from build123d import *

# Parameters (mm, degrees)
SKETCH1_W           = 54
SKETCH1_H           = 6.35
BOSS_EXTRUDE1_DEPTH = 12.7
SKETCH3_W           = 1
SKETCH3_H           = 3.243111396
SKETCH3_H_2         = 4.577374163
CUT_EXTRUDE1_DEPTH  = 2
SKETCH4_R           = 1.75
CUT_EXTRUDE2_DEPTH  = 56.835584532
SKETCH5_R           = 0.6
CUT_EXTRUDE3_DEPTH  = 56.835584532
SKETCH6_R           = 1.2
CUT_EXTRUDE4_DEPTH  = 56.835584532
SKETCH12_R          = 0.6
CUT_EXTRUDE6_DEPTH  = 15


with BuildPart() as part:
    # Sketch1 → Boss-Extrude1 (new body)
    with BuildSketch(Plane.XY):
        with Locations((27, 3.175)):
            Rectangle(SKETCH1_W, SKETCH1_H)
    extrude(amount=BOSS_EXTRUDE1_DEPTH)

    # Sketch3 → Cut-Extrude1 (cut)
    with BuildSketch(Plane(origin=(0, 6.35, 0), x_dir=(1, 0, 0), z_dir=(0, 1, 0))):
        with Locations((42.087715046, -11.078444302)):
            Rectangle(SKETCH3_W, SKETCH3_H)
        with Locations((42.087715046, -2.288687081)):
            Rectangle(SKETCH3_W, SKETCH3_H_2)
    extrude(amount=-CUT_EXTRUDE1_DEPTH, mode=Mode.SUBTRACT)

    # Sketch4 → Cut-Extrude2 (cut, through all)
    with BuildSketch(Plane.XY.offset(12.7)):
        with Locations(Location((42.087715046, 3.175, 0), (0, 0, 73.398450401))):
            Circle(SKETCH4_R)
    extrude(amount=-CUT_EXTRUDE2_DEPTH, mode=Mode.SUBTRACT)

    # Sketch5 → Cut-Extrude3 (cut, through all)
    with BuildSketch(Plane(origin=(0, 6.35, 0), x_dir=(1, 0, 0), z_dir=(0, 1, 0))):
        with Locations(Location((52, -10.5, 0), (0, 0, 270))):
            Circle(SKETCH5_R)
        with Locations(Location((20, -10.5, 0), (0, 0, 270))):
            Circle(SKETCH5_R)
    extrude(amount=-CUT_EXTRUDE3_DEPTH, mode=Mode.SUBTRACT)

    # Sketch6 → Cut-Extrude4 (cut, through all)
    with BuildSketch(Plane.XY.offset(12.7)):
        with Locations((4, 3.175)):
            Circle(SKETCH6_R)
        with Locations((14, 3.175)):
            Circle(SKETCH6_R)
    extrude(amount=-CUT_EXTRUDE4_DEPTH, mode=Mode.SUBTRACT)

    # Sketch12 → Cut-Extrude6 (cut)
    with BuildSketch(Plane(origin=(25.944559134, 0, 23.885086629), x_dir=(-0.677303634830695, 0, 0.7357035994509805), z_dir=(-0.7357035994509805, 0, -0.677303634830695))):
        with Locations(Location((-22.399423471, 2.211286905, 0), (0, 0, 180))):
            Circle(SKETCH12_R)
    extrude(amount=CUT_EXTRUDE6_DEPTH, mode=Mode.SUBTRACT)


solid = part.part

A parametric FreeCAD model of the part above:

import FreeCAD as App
import Part
import Sketcher
from FreeCAD import Vector
Q = App.Units.Quantity


def add_polygon(sketch, points):
    """Adds a closed chain of lines whose ends are joined by coincident constraints."""
    first, n = sketch.GeometryCount, len(points)
    for a, b in zip(points, points[1:] + points[:1]):
        sketch.addGeometry(Part.LineSegment(App.Vector(*a, 0), App.Vector(*b, 0)), False)
    for i in range(n):
        sketch.addConstraint(Sketcher.Constraint("Coincident", first + i, 2, first + (i + 1) % n, 1))

doc = App.newDocument("Part")
body = doc.addObject("PartDesign::Body", "Body")

sketch1 = body.newObject("Sketcher::SketchObject", "Sketch")
sketch1.AttachmentSupport = (doc.getObject("XY_Plane"), [""])
sketch1.MapMode = "FlatFace"
add_polygon(sketch1, [(0, 6), (0, 0), (54, 0), (54, 6)])
sketch1.addConstraint(Sketcher.Constraint("Vertical", 0))
sketch1.addConstraint(Sketcher.Constraint("Horizontal", 1))
sketch1.addConstraint(Sketcher.Constraint("Vertical", 2))
sketch1.addConstraint(Sketcher.Constraint("Horizontal", 3))
sketch1.addConstraint(Sketcher.Constraint("Coincident", 0, 2, -1, 1))
sketch1.addConstraint(Sketcher.Constraint("DistanceX", 1, 1, 1, 2, Q("54 mm")))
sketch1.addConstraint(Sketcher.Constraint("DistanceY", 0, 2, 0, 1, Q("6.35 mm")))
pad1 = body.newObject("PartDesign::Pad", "Pad")
pad1.Profile = sketch1
pad1.Length = 12.7

sketch2 = body.newObject("Sketcher::SketchObject", "Sketch001")
sketch2.AttachmentSupport = (doc.getObject("XZ_Plane"), [""])
sketch2.MapMode = "FlatFace"
sketch2.AttachmentOffset = App.Placement(Vector(0, 0, -6.35), App.Rotation())
add_polygon(sketch2, [(41.6, 9.5), (41.6, 12.7), (42.6, 12.7), (42.6, 9.5)])
add_polygon(sketch2, [(41.6, 0), (41.6, 4.6), (42.6, 4.6), (42.6, 0)])
sketch2.addConstraint(Sketcher.Constraint("Vertical", 0))
sketch2.addConstraint(Sketcher.Constraint("Horizontal", 1))
sketch2.addConstraint(Sketcher.Constraint("Vertical", 2))
sketch2.addConstraint(Sketcher.Constraint("Horizontal", 3))
sketch2.addConstraint(Sketcher.Constraint("Vertical", 4))
sketch2.addConstraint(Sketcher.Constraint("Horizontal", 5))
sketch2.addConstraint(Sketcher.Constraint("Vertical", 6))
sketch2.addConstraint(Sketcher.Constraint("Horizontal", 7))
sketch2.addConstraint(Sketcher.Constraint("PointOnObject", 6, 2, -1))
sketch2.addConstraint(Sketcher.Constraint("Vertical", 3, 2, 4, 2))
sketch2.addConstraint(Sketcher.Constraint("Vertical", 2, 2, 5, 2))
sketch2.addConstraint(Sketcher.Constraint("DistanceX", 1, 1, 1, 2, Q("1 mm")))
sketch2.addConstraint(Sketcher.Constraint("DistanceY", -1, 1, 0, 2, Q("12.7 mm")))
sketch2.addConstraint(Sketcher.Constraint("DistanceY", 0, 1, 0, 2, Q("3.243111 mm")))
sketch2.addConstraint(Sketcher.Constraint("DistanceY", 4, 1, 4, 2, Q("4.577374 mm")))
sketch2.addConstraint(Sketcher.Constraint("DistanceX", -1, 1, 0, 2, Q("41.587715 mm")))
pocket1 = body.newObject("PartDesign::Pocket", "Pocket")
pocket1.Profile = sketch2
pocket1.Length = 2
pocket1.Reversed = True

sketch3 = body.newObject("Sketcher::SketchObject", "Sketch002")
sketch3.AttachmentSupport = (doc.getObject("XY_Plane"), [""])
sketch3.MapMode = "FlatFace"
sketch3.AttachmentOffset = App.Placement(Vector(0, 0, 12.7), App.Rotation())
sketch3.addGeometry(Part.Circle(Vector(42.1, 3.2, 0), Vector(0, 0, 1), 1.8), False)
sketch3.addConstraint(Sketcher.Constraint("Diameter", 0, Q("3.5 mm")))
sketch3.addConstraint(Sketcher.Constraint("DistanceY", -1, 1, 0, 3, Q("3.175 mm")))
sketch3.addConstraint(Sketcher.Constraint("DistanceX", -1, 1, 0, 3, Q("42.087715 mm")))
pocket2 = body.newObject("PartDesign::Pocket", "Pocket001")
pocket2.Profile = sketch3
pocket2.Type = "ThroughAll"

sketch4 = body.newObject("Sketcher::SketchObject", "Sketch003")
sketch4.AttachmentSupport = (doc.getObject("XZ_Plane"), [""])
sketch4.MapMode = "FlatFace"
sketch4.AttachmentOffset = App.Placement(Vector(0, 0, -6.35), App.Rotation())
sketch4.addGeometry(Part.Circle(Vector(52, 10.5, 0), Vector(0, 0, 1), 0.6), False)
sketch4.addGeometry(Part.Circle(Vector(20, 10.5, 0), Vector(0, 0, 1), 0.6), False)
sketch4.addConstraint(Sketcher.Constraint("Equal", 0, 1))
sketch4.addConstraint(Sketcher.Constraint("Horizontal", 0, 3, 1, 3))
sketch4.addConstraint(Sketcher.Constraint("Diameter", 0, Q("1.2 mm")))
sketch4.addConstraint(Sketcher.Constraint("DistanceX", -1, 1, 0, 3, Q("52 mm")))
sketch4.addConstraint(Sketcher.Constraint("DistanceX", -1, 1, 1, 3, Q("20 mm")))
sketch4.addConstraint(Sketcher.Constraint("DistanceY", -1, 1, 0, 3, Q("10.5 mm")))
pocket3 = body.newObject("PartDesign::Pocket", "Pocket002")
pocket3.Profile = sketch4
pocket3.Type = "ThroughAll"
pocket3.Reversed = True

sketch5 = body.newObject("Sketcher::SketchObject", "Sketch004")
sketch5.AttachmentSupport = (doc.getObject("XY_Plane"), [""])
sketch5.MapMode = "FlatFace"
sketch5.AttachmentOffset = App.Placement(Vector(0, 0, 12.7), App.Rotation())
sketch5.addGeometry(Part.Circle(Vector(4, 3.2, 0), Vector(0, 0, 1), 1.2), False)
sketch5.addGeometry(Part.Circle(Vector(14, 3.2, 0), Vector(0, 0, 1), 1.2), False)
sketch5.addConstraint(Sketcher.Constraint("Equal", 0, 1))
sketch5.addConstraint(Sketcher.Constraint("Horizontal", 0, 3, 1, 3))
sketch5.addConstraint(Sketcher.Constraint("Diameter", 0, Q("2.4 mm")))
sketch5.addConstraint(Sketcher.Constraint("DistanceX", -1, 1, 0, 3, Q("4 mm")))
sketch5.addConstraint(Sketcher.Constraint("DistanceX", -1, 1, 1, 3, Q("14 mm")))
sketch5.addConstraint(Sketcher.Constraint("DistanceY", -1, 1, 0, 3, Q("3.175 mm")))
pocket4 = body.newObject("PartDesign::Pocket", "Pocket003")
pocket4.Profile = sketch5
pocket4.Type = "ThroughAll"

sketch6 = body.newObject("Sketcher::SketchObject", "Sketch005")
sketch6.Placement = App.Placement(Vector(25.944559, 0, 23.885087), App.Rotation(Vector(-0.677303635, 0, 0.735703599), Vector(0, 1, 0), Vector(-0.735703599, 0, -0.677303635), "ZXY"))
sketch6.addGeometry(Part.Circle(Vector(-22.4, 2.2, 0), Vector(0, 0, 1), 0.6), False)
sketch6.addConstraint(Sketcher.Constraint("Diameter", 0, Q("1.2 mm")))
sketch6.addConstraint(Sketcher.Constraint("DistanceX", 0, 3, -1, 1, Q("22.399423 mm")))
sketch6.addConstraint(Sketcher.Constraint("DistanceY", -1, 1, 0, 3, Q("2.211287 mm")))
pocket5 = body.newObject("PartDesign::Pocket", "Pocket004")
pocket5.Profile = sketch6
pocket5.Length = 15
pocket5.Reversed = True

doc.recompute()
